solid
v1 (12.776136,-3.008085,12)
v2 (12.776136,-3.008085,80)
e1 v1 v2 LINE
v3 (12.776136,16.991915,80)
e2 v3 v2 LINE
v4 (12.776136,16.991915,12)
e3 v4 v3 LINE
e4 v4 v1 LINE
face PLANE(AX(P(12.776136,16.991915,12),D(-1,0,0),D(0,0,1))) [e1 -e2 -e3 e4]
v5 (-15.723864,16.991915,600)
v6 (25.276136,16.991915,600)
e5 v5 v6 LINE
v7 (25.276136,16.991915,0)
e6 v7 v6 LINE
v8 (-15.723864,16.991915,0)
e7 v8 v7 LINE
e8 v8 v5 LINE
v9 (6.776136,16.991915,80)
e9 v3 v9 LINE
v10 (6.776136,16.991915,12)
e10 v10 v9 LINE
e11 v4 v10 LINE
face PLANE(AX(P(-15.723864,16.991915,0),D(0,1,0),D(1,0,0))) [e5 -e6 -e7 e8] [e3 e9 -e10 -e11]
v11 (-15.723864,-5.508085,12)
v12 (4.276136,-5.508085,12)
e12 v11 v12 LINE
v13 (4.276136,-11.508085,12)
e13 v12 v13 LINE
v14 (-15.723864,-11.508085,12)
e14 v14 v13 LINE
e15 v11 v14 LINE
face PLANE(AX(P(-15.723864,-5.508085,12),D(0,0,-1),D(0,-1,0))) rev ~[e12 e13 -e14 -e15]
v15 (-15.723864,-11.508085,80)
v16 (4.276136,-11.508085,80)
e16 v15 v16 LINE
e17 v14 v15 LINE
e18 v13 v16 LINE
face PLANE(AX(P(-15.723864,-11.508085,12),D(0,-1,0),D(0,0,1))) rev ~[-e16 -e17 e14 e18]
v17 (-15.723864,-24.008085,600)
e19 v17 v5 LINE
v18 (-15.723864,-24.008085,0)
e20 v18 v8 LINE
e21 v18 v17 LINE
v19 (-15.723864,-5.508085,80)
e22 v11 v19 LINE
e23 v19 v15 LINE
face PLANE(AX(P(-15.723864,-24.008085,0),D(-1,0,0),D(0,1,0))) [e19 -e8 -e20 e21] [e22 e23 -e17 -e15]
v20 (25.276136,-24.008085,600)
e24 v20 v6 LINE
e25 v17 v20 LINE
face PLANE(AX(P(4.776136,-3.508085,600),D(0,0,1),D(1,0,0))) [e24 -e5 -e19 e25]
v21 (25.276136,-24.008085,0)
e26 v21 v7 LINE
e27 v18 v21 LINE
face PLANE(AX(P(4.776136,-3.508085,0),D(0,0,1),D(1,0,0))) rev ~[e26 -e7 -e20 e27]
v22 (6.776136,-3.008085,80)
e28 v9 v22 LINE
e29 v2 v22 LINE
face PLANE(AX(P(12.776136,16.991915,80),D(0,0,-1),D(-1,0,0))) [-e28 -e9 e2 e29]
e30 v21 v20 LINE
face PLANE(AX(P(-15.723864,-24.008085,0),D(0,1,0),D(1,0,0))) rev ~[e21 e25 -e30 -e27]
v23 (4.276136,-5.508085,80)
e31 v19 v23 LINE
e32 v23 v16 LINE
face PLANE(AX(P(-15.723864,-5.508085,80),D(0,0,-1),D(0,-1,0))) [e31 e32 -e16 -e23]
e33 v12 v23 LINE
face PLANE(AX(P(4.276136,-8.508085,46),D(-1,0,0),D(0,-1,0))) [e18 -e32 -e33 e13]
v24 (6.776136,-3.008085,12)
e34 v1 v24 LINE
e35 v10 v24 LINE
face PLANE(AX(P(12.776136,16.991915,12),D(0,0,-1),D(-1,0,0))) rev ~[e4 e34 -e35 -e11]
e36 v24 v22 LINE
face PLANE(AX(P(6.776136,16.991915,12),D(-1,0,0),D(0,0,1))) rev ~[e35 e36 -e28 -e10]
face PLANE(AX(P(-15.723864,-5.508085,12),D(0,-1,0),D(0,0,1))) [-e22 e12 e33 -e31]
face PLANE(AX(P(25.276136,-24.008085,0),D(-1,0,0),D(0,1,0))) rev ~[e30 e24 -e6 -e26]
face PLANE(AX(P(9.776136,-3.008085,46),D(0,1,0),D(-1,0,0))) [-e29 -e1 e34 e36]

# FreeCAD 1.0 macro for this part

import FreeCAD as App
import Part
import Sketcher

V = App.Vector


def add_polygon(sketch, points):
    """Adds a closed chain of lines whose ends are joined by coincident constraints."""
    first, n = sketch.GeometryCount, len(points)
    for a, b in zip(points, points[1:] + points[:1]):
        sketch.addGeometry(Part.LineSegment(App.Vector(*a, 0), App.Vector(*b, 0)), False)
    for i in range(n):
        sketch.addConstraint(Sketcher.Constraint("Coincident", first + i, 2, first + (i + 1) % n, 1))

doc = App.newDocument("Part")
body = doc.addObject("PartDesign::Body", "Body")

# Sketch on XY plane
sketch1 = body.newObject("Sketcher::SketchObject", "Sketch")
sketch1.AttachmentSupport = (doc.getObject("XY_Plane"), [""])
sketch1.MapMode = "FlatFace"
add_polygon(sketch1, [(-16, 17), (-16, -24), (25, -24), (25, 17)])  # lines 0-3
sketch1.addConstraint([
    Sketcher.Constraint("Vertical", 0),
    Sketcher.Constraint("Horizontal", 1),
    Sketcher.Constraint("Vertical", 2),
    Sketcher.Constraint("Horizontal", 3),
    Sketcher.Constraint("Equal", 3, 0),
    Sketcher.Constraint("DistanceX", 1, 1, 1, 2, 41.0),
    Sketcher.Constraint("DistanceX", 0, 2, -1, 1, 15.723864),
    Sketcher.Constraint("DistanceY", 0, 2, -1, 1, 24.008085),
])
pad1 = body.newObject("PartDesign::Pad", "Pad")
pad1.Profile = sketch1
pad1.Length = 600

# Sketch on YZ plane
sketch2 = body.newObject("Sketcher::SketchObject", "Sketch001")
sketch2.AttachmentSupport = (doc.getObject("YZ_Plane"), [""])
sketch2.MapMode = "FlatFace"
sketch2.AttachmentOffset = App.Placement(V(0, 0, -15.723864), App.Rotation())
add_polygon(sketch2, [(-6, 80), (-6, 12), (-12, 12), (-12, 80)])  # lines 0-3
sketch2.addConstraint([
    Sketcher.Constraint("Vertical", 0),
    Sketcher.Constraint("Horizontal", 1),
    Sketcher.Constraint("Vertical", 2),
    Sketcher.Constraint("Horizontal", 3),
    Sketcher.Constraint("DistanceX", 1, 2, 1, 1, 6.0),
    Sketcher.Constraint("DistanceY", 0, 2, 0, 1, 68.0),
    Sketcher.Constraint("DistanceY", -1, 1, 0, 2, 12.0),
    Sketcher.Constraint("DistanceX", 0, 2, -1, 1, 5.508085),
])
pocket1 = body.newObject("PartDesign::Pocket", "Pocket")
pocket1.Profile = sketch2
pocket1.Length = 20
pocket1.Reversed = True

# Sketch on XZ plane
sketch3 = body.newObject("Sketcher::SketchObject", "Sketch002")
sketch3.AttachmentSupport = (doc.getObject("XZ_Plane"), [""])
sketch3.MapMode = "FlatFace"
sketch3.AttachmentOffset = App.Placement(V(0, 0, -16.991915), App.Rotation())
add_polygon(sketch3, [(13, 80), (13, 12), (7, 12), (7, 80)])  # lines 0-3
sketch3.addConstraint([
    Sketcher.Constraint("Vertical", 0),
    Sketcher.Constraint("Horizontal", 1),
    Sketcher.Constraint("Vertical", 2),
    Sketcher.Constraint("Horizontal", 3),
    Sketcher.Constraint("DistanceX", 1, 2, 1, 1, 6.0),
    Sketcher.Constraint("DistanceY", 0, 2, 0, 1, 68.0),
    Sketcher.Constraint("DistanceY", -1, 1, 0, 2, 12.0),
    Sketcher.Constraint("DistanceX", -1, 1, 0, 2, 12.776136),
])
pocket2 = body.newObject("PartDesign::Pocket", "Pocket001")
pocket2.Profile = sketch3
pocket2.Length = 20
pocket2.Reversed = True

doc.recompute()
